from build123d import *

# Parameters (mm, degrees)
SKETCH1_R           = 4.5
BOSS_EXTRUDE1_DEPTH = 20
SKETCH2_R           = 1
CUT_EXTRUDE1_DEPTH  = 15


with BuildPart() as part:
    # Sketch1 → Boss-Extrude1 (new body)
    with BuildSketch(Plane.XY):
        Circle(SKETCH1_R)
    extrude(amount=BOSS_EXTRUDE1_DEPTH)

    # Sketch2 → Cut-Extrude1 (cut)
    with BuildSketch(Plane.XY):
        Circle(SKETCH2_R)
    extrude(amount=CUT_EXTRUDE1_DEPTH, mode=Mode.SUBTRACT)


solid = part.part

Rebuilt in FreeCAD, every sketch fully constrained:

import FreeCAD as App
import Part
import Sketcher

V = App.Vector
Q = App.Units.Quantity

doc = App.newDocument("Part")
body = doc.addObject("PartDesign::Body", "Body")

# Sketch on XY plane
sketch1 = doc.addObject("Sketcher::SketchObject", "Sketch")
body.addObject(sketch1)
sketch1.AttachmentSupport = (doc.XY_Plane, [""])
sketch1.MapMode = "FlatFace"
sketch1.addGeometry(Part.Circle(V(0, 0, 0), V(0, 0, 1), 4.5), False)
sketch1.addConstraint(Sketcher.Constraint("Coincident", 0, 3, -1, 1))
sketch1.addConstraint(Sketcher.Constraint("Diameter", 0, Q("9 mm")))
pad1 = doc.addObject("PartDesign::Pad", "Pad")
body.addObject(pad1)
pad1.Profile = sketch1
pad1.Length = 20

# Sketch on XY plane
sketch2 = doc.addObject("Sketcher::SketchObject", "Sketch001")
body.addObject(sketch2)
sketch2.AttachmentSupport = (doc.XY_Plane, [""])
sketch2.MapMode = "FlatFace"
sketch2.addGeometry(Part.Circle(V(0, 0, 0), V(0, 0, 1), 1), False)
sketch2.addConstraint(Sketcher.Constraint("Coincident", 0, 3, -1, 1))
sketch2.addConstraint(Sketcher.Constraint("Diameter", 0, Q("2 mm")))
pocket1 = doc.addObject("PartDesign::Pocket", "Pocket")
body.addObject(pocket1)
pocket1.Profile = sketch2
pocket1.Length = 15
pocket1.Reversed = True

doc.recompute()
